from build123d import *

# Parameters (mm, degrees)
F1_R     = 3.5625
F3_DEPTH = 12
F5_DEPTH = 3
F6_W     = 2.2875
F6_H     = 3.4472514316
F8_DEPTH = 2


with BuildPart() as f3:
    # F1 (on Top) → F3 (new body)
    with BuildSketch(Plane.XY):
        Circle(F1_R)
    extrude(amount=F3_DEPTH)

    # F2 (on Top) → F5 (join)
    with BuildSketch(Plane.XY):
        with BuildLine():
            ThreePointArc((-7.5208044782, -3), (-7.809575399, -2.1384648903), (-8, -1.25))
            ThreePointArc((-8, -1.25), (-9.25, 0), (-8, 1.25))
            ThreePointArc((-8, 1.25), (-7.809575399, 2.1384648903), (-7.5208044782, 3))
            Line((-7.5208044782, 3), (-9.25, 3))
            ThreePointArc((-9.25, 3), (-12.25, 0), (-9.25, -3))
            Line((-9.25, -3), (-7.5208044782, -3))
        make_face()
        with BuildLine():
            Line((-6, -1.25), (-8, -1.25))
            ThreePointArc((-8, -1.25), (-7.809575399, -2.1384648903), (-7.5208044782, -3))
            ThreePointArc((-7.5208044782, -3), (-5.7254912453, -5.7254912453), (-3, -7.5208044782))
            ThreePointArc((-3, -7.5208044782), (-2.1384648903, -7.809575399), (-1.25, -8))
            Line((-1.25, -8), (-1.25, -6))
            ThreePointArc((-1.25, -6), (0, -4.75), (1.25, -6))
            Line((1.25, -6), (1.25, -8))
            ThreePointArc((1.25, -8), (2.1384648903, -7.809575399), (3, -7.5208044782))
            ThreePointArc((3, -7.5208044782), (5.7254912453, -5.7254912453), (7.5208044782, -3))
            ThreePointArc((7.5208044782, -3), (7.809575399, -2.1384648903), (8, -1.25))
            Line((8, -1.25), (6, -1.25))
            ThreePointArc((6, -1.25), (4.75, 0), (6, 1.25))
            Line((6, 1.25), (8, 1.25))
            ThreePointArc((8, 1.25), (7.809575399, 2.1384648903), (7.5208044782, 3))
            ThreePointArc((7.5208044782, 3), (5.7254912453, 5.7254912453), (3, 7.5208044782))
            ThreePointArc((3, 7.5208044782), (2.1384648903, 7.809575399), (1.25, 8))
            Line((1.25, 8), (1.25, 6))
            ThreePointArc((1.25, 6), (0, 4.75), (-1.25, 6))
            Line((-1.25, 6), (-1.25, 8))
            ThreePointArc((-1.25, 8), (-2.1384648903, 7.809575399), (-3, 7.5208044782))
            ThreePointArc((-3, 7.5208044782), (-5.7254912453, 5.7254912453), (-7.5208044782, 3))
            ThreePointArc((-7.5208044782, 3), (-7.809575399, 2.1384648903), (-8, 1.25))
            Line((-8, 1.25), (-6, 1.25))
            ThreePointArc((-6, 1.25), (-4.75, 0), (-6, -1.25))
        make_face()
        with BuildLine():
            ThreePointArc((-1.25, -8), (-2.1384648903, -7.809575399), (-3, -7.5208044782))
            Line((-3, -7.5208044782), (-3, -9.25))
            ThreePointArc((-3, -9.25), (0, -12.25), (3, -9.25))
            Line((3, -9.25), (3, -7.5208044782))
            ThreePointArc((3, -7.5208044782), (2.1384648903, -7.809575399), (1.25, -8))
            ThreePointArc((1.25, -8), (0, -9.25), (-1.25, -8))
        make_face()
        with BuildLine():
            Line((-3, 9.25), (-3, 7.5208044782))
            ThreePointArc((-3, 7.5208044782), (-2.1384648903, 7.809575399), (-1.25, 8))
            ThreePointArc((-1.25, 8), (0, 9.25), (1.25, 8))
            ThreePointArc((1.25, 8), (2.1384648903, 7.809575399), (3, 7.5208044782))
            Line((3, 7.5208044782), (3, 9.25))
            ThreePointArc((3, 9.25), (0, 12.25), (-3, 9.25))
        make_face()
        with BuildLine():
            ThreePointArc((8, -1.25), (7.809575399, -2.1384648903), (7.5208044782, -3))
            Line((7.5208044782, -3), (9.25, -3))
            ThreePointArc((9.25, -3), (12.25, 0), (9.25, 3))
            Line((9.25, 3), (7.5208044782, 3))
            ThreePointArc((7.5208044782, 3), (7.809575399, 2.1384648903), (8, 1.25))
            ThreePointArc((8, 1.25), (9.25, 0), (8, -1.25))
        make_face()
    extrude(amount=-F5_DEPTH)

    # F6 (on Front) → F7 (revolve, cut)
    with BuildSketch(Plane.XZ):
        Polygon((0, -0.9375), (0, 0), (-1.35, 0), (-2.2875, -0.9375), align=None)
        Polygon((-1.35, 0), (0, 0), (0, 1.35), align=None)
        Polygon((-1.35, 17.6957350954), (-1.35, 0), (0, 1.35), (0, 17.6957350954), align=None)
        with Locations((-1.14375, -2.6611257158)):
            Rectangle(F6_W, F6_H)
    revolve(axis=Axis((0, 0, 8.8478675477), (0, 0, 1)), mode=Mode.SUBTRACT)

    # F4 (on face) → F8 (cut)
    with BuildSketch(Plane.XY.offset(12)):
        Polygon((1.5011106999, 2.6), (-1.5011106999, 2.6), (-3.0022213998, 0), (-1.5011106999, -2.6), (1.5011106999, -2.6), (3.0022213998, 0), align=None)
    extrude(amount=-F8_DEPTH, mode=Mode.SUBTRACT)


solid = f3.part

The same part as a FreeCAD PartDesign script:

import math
import FreeCAD as App
import Part
import Sketcher
Q = App.Units.Quantity

doc = App.newDocument("Part")
body = doc.addObject("PartDesign::Body", "Body")

# Sketch on XY plane
sketch1 = body.newObject("Sketcher::SketchObject", "Sketch")
sketch1.AttachmentSupport = (doc.getObject("XY_Plane"), [""])
sketch1.MapMode = "FlatFace"
sketch1.addGeometry(Part.Circle(App.Vector(0, 0, 0), App.Vector(0, 0, 1), 3.5625), False)
sketch1.addConstraint(Sketcher.Constraint("Coincident", 0, 3, -1, 1))
sketch1.addConstraint(Sketcher.Constraint("Diameter", 0, 7.125))
pad1 = body.newObject("PartDesign::Pad", "Pad")
pad1.Profile = sketch1
pad1.Length = 12

# Sketch on XY plane
sketch2 = body.newObject("Sketcher::SketchObject", "Sketch001")
sketch2.AttachmentSupport = (doc.getObject("XY_Plane"), [""])
sketch2.MapMode = "FlatFace"
sketch2.addGeometry(Part.LineSegment(App.Vector(-7.520804, 3, 0), App.Vector(-9.25, 3, 0)), False)
sketch2.addGeometry(Part.ArcOfCircle(Part.Circle(App.Vector(-9.25, 0, 0), App.Vector(0, 0, 1), 3), math.radians(90), math.radians(270)), False)
sketch2.addGeometry(Part.LineSegment(App.Vector(-9.25, -3, 0), App.Vector(-7.520804, -3, 0)), False)
sketch2.addGeometry(Part.ArcOfCircle(Part.Circle(App.Vector(0, 0, 0), App.Vector(0, 0, 1), 8.097067), math.radians(-158.253265), math.radians(-111.746735)), False)
sketch2.addGeometry(Part.LineSegment(App.Vector(-3, -7.520804, 0), App.Vector(-3, -9.25, 0)), False)
sketch2.addGeometry(Part.ArcOfCircle(Part.Circle(App.Vector(0, -9.25, 0), App.Vector(0, 0, 1), 3), math.radians(180), math.radians(360)), False)
sketch2.addGeometry(Part.LineSegment(App.Vector(3, -9.25, 0), App.Vector(3, -7.520804, 0)), False)
sketch2.addGeometry(Part.ArcOfCircle(Part.Circle(App.Vector(0, 0, 0), App.Vector(0, 0, 1), 8.097067), math.radians(-68.253265), math.radians(-21.746735)), False)
sketch2.addGeometry(Part.LineSegment(App.Vector(7.520804, -3, 0), App.Vector(9.25, -3, 0)), False)
sketch2.addGeometry(Part.ArcOfCircle(Part.Circle(App.Vector(9.25, 0, 0), App.Vector(0, 0, 1), 3), math.radians(-90), math.radians(90)), False)
sketch2.addGeometry(Part.LineSegment(App.Vector(9.25, 3, 0), App.Vector(7.520804, 3, 0)), False)
sketch2.addGeometry(Part.ArcOfCircle(Part.Circle(App.Vector(0, 0, 0), App.Vector(0, 0, 1), 8.097067), math.radians(21.746735), math.radians(68.253265)), False)
sketch2.addGeometry(Part.LineSegment(App.Vector(3, 7.520804, 0), App.Vector(3, 9.25, 0)), False)
sketch2.addGeometry(Part.ArcOfCircle(Part.Circle(App.Vector(0, 9.25, 0), App.Vector(0, 0, 1), 3), math.radians(0), math.radians(180)), False)
sketch2.addGeometry(Part.LineSegment(App.Vector(-3, 9.25, 0), App.Vector(-3, 7.520804, 0)), False)
sketch2.addGeometry(Part.ArcOfCircle(Part.Circle(App.Vector(0, 0, 0), App.Vector(0, 0, 1), 8.097067), math.radians(111.746735), math.radians(158.253265)), False)
sketch2.addGeometry(Part.ArcOfCircle(Part.Circle(App.Vector(-8, 0, 0), App.Vector(0, 0, 1), 1.25), math.radians(90), math.radians(270)), False)
sketch2.addGeometry(Part.LineSegment(App.Vector(-8, 1.25, 0), App.Vector(-6, 1.25, 0)), False)
sketch2.addGeometry(Part.ArcOfCircle(Part.Circle(App.Vector(-6, 0, 0), App.Vector(0, 0, 1), 1.25), math.radians(-90), math.radians(90)), False)
sketch2.addGeometry(Part.LineSegment(App.Vector(-6, -1.25, 0), App.Vector(-8, -1.25, 0)), False)
sketch2.addGeometry(Part.LineSegment(App.Vector(8, -1.25, 0), App.Vector(6, -1.25, 0)), False)
sketch2.addGeometry(Part.ArcOfCircle(Part.Circle(App.Vector(6, 0, 0), App.Vector(0, 0, 1), 1.25), math.radians(90), math.radians(270)), False)
sketch2.addGeometry(Part.LineSegment(App.Vector(6, 1.25, 0), App.Vector(8, 1.25, 0)), False)
sketch2.addGeometry(Part.ArcOfCircle(Part.Circle(App.Vector(8, 0, 0), App.Vector(0, 0, 1), 1.25), math.radians(-90), math.radians(90)), False)
sketch2.addGeometry(Part.LineSegment(App.Vector(1.25, 8, 0), App.Vector(1.25, 6, 0)), False)
sketch2.addGeometry(Part.ArcOfCircle(Part.Circle(App.Vector(0, 6, 0), App.Vector(0, 0, 1), 1.25), math.radians(180), math.radians(360)), False)
sketch2.addGeometry(Part.LineSegment(App.Vector(-1.25, 6, 0), App.Vector(-1.25, 8, 0)), False)
sketch2.addGeometry(Part.ArcOfCircle(Part.Circle(App.Vector(0, 8, 0), App.Vector(0, 0, 1), 1.25), math.radians(0), math.radians(180)), False)
sketch2.addGeometry(Part.LineSegment(App.Vector(-1.25, -8, 0), App.Vector(-1.25, -6, 0)), False)
sketch2.addGeometry(Part.ArcOfCircle(Part.Circle(App.Vector(0, -6, 0), App.Vector(0, 0, 1), 1.25), math.radians(0), math.radians(180)), False)
sketch2.addGeometry(Part.LineSegment(App.Vector(1.25, -6, 0), App.Vector(1.25, -8, 0)), False)
sketch2.addGeometry(Part.ArcOfCircle(Part.Circle(App.Vector(0, -8, 0), App.Vector(0, 0, 1), 1.25), math.radians(180), math.radians(360)), False)
sketch2.addConstraint(Sketcher.Constraint("Tangent", 0, 2, 1, 1))
sketch2.addConstraint(Sketcher.Constraint("Tangent", 1, 2, 2, 1))
sketch2.addConstraint(Sketcher.Constraint("Coincident", 2, 2, 3, 1))
sketch2.addConstraint(Sketcher.Constraint("Coincident", 3, 2, 4, 1))
sketch2.addConstraint(Sketcher.Constraint("Tangent", 4, 2, 5, 1))
sketch2.addConstraint(Sketcher.Constraint("Tangent", 5, 2, 6, 1))
sketch2.addConstraint(Sketcher.Constraint("Coincident", 6, 2, 7, 1))
sketch2.addConstraint(Sketcher.Constraint("Coincident", 7, 2, 8, 1))
sketch2.addConstraint(Sketcher.Constraint("Tangent", 8, 2, 9, 1))
sketch2.addConstraint(Sketcher.Constraint("Tangent", 9, 2, 10, 1))
sketch2.addConstraint(Sketcher.Constraint("Coincident", 10, 2, 11, 1))
sketch2.addConstraint(Sketcher.Constraint("Coincident", 11, 2, 12, 1))
sketch2.addConstraint(Sketcher.Constraint("Tangent", 12, 2, 13, 1))
sketch2.addConstraint(Sketcher.Constraint("Tangent", 13, 2, 14, 1))
sketch2.addConstraint(Sketcher.Constraint("Coincident", 14, 2, 15, 1))
sketch2.addConstraint(Sketcher.Constraint("Coincident", 15, 2, 0, 1))
sketch2.addConstraint(Sketcher.Constraint("Tangent", 16, 1, 17, 1))
sketch2.addConstraint(Sketcher.Constraint("Tangent", 17, 2, 18, 2))
sketch2.addConstraint(Sketcher.Constraint("Tangent", 18, 1, 19, 1))
sketch2.addConstraint(Sketcher.Constraint("Tangent", 19, 2, 16, 2))
sketch2.addConstraint(Sketcher.Constraint("Tangent", 20, 2, 21, 2))
sketch2.addConstraint(Sketcher.Constraint("Tangent", 21, 1, 22, 1))
sketch2.addConstraint(Sketcher.Constraint("Tangent", 22, 2, 23, 2))
sketch2.addConstraint(Sketcher.Constraint("Tangent", 23, 1, 20, 1))
sketch2.addConstraint(Sketcher.Constraint("Tangent", 24, 2, 25, 2))
sketch2.addConstraint(Sketcher.Constraint("Tangent", 25, 1, 26, 1))
sketch2.addConstraint(Sketcher.Constraint("Tangent", 26, 2, 27, 2))
sketch2.addConstraint(Sketcher.Constraint("Tangent", 27, 1, 24, 1))
sketch2.addConstraint(Sketcher.Constraint("Tangent", 28, 2, 29, 2))
sketch2.addConstraint(Sketcher.Constraint("Tangent", 29, 1, 30, 1))
sketch2.addConstraint(Sketcher.Constraint("Tangent", 30, 2, 31, 2))
sketch2.addConstraint(Sketcher.Constraint("Tangent", 31, 1, 28, 1))
sketch2.addConstraint(Sketcher.Constraint("Horizontal", 0))
sketch2.addConstraint(Sketcher.Constraint("Horizontal", 2))
sketch2.addConstraint(Sketcher.Constraint("Vertical", 4))
sketch2.addConstraint(Sketcher.Constraint("Vertical", 6))
sketch2.addConstraint(Sketcher.Constraint("Horizontal", 8))
sketch2.addConstraint(Sketcher.Constraint("Horizontal", 10))
sketch2.addConstraint(Sketcher.Constraint("Vertical", 12))
sketch2.addConstraint(Sketcher.Constraint("Vertical", 14))
sketch2.addConstraint(Sketcher.Constraint("Horizontal", 17))
sketch2.addConstraint(Sketcher.Constraint("Horizontal", 19))
sketch2.addConstraint(Sketcher.Constraint("Horizontal", 20))
sketch2.addConstraint(Sketcher.Constraint("Horizontal", 22))
sketch2.addConstraint(Sketcher.Constraint("Vertical", 24))
sketch2.addConstraint(Sketcher.Constraint("Vertical", 26))
sketch2.addConstraint(Sketcher.Constraint("Vertical", 28))
sketch2.addConstraint(Sketcher.Constraint("Vertical", 30))
sketch2.addConstraint(Sketcher.Constraint("Coincident", 3, 3, -1, 1))
sketch2.addConstraint(Sketcher.Constraint("Coincident", 7, 3, -1, 1))
sketch2.addConstraint(Sketcher.Constraint("Coincident", 11, 3, -1, 1))
sketch2.addConstraint(Sketcher.Constraint("Coincident", 15, 3, -1, 1))
sketch2.addConstraint(Sketcher.Constraint("Equal", 1, 5))
sketch2.addConstraint(Sketcher.Constraint("Equal", 3, 7))
sketch2.addConstraint(Sketcher.Constraint("Equal", 5, 9))
sketch2.addConstraint(Sketcher.Constraint("Equal", 7, 11))
sketch2.addConstraint(Sketcher.Constraint("Equal", 9, 13))
sketch2.addConstraint(Sketcher.Constraint("Equal", 11, 15))
sketch2.addConstraint(Sketcher.Constraint("Equal", 18, 21))
sketch2.addConstraint(Sketcher.Constraint("Equal", 23, 25))
sketch2.addConstraint(Sketcher.Constraint("Equal", 27, 29))
sketch2.addConstraint(Sketcher.Constraint("Symmetric", 1, 3, 9, 3, -1, 1))
sketch2.addConstraint(Sketcher.Constraint("Symmetric", 5, 3, 13, 3, -1, 1))
sketch2.addConstraint(Sketcher.Constraint("Symmetric", 18, 3, 21, 3, -1, 1))
sketch2.addConstraint(Sketcher.Constraint("Symmetric", 25, 3, 29, 3, -1, 1))
sketch2.addConstraint(Sketcher.Constraint("Symmetric", 16, 3, 23, 3, -2))
sketch2.addConstraint(Sketcher.Constraint("Symmetric", 27, 3, 31, 3, -1))
sketch2.addConstraint(Sketcher.Constraint("PointOnObject", 1, 3, -1))
sketch2.addConstraint(Sketcher.Constraint("PointOnObject", 5, 3, -2))
sketch2.addConstraint(Sketcher.Constraint("Equal", 10, 4))
sketch2.addConstraint(Sketcher.Constraint("Equal", 22, 24))
sketch2.addConstraint(Sketcher.Constraint("Radius", 1, 3.0))
sketch2.addConstraint(Sketcher.Constraint("DistanceX", 17, 1, 17, 2, 2.0))
sketch2.addConstraint(Sketcher.Constraint("Radius", 16, 1.25))
sketch2.addConstraint(Sketcher.Constraint("DistanceX", 16, 3, -1, 1, 8.0))
sketch2.addConstraint(Sketcher.Constraint("DistanceY", -1, 1, 25, 3, 6.0))
sketch2.addConstraint(Sketcher.Constraint("DistanceX", 1, 3, 9, 3, 18.5))
sketch2.addConstraint(Sketcher.Constraint("Radius", 3, 8.097067))
pad2 = body.newObject("PartDesign::Pad", "Pad001")
pad2.Profile = sketch2
pad2.Length = 3
pad2.Reversed = True

# Sketch on XZ plane
sketch3 = body.newObject("Sketcher::SketchObject", "Sketch002")
sketch3.AttachmentSupport = (doc.getObject("XZ_Plane"), [""])
sketch3.MapMode = "FlatFace"
sketch3.addGeometry(Part.LineSegment(App.Vector(0, 17.695735, 0), App.Vector(-1.35, 17.695735, 0)), False)
sketch3.addGeometry(Part.LineSegment(App.Vector(-1.35, 17.695735, 0), App.Vector(-1.35, 0, 0)), False)
sketch3.addGeometry(Part.LineSegment(App.Vector(-1.35, 0, 0), App.Vector(-2.2875, -0.9375, 0)), False)
sketch3.addGeometry(Part.LineSegment(App.Vector(-2.2875, -0.9375, 0), App.Vector(-2.2875, -4.384751, 0)), False)
sketch3.addGeometry(Part.LineSegment(App.Vector(-2.2875, -4.384751, 0), App.Vector(0, -4.384751, 0)), False)
sketch3.addGeometry(Part.LineSegment(App.Vector(0, -4.384751, 0), App.Vector(0, 17.695735, 0)), False)
sketch3.addConstraint(Sketcher.Constraint("Coincident", 0, 2, 1, 1))
sketch3.addConstraint(Sketcher.Constraint("Coincident", 1, 2, 2, 1))
sketch3.addConstraint(Sketcher.Constraint("Coincident", 2, 2, 3, 1))
sketch3.addConstraint(Sketcher.Constraint("Coincident", 3, 2, 4, 1))
sketch3.addConstraint(Sketcher.Constraint("Coincident", 4, 2, 5, 1))
sketch3.addConstraint(Sketcher.Constraint("Coincident", 5, 2, 0, 1))
sketch3.addConstraint(Sketcher.Constraint("Horizontal", 0))
sketch3.addConstraint(Sketcher.Constraint("Vertical", 1))
sketch3.addConstraint(Sketcher.Constraint("Vertical", 3))
sketch3.addConstraint(Sketcher.Constraint("Horizontal", 4))
sketch3.addConstraint(Sketcher.Constraint("Vertical", 5))
sketch3.addConstraint(Sketcher.Constraint("PointOnObject", 1, 2, -1))
sketch3.addConstraint(Sketcher.Constraint("PointOnObject", 4, 2, -2))
sketch3.addConstraint(Sketcher.Constraint("Angle", 2, Q("-135 deg")))
sketch3.addConstraint(Sketcher.Constraint("DistanceX", 0, 2, 0, 1, 1.35))
sketch3.addConstraint(Sketcher.Constraint("DistanceX", 4, 1, 4, 2, 2.2875))
sketch3.addConstraint(Sketcher.Constraint("DistanceY", 3, 2, 3, 1, 3.447251))
sketch3.addConstraint(Sketcher.Constraint("DistanceY", 1, 2, 1, 1, 17.695735))
groove = body.newObject("PartDesign::Groove", "Groove")
groove.Profile = sketch3
groove.ReferenceAxis = (sketch3, ["V_Axis"])
groove.Angle = 360

# Sketch on XY plane
sketch4 = body.newObject("Sketcher::SketchObject", "Sketch003")
sketch4.AttachmentSupport = (doc.getObject("XY_Plane"), [""])
sketch4.MapMode = "FlatFace"
sketch4.AttachmentOffset = App.Placement(App.Vector(0, 0, 12), App.Rotation())
sketch4.addGeometry(Part.LineSegment(App.Vector(1.501111, 2.6, 0), App.Vector(-1.501111, 2.6, 0)), False)
sketch4.addGeometry(Part.LineSegment(App.Vector(-1.501111, 2.6, 0), App.Vector(-3.002221, 0, 0)), False)
sketch4.addGeometry(Part.LineSegment(App.Vector(-3.002221, 0, 0), App.Vector(-1.501111, -2.6, 0)), False)
sketch4.addGeometry(Part.LineSegment(App.Vector(-1.501111, -2.6, 0), App.Vector(1.501111, -2.6, 0)), False)
sketch4.addGeometry(Part.LineSegment(App.Vector(1.501111, -2.6, 0), App.Vector(3.002221, 0, 0)), False)
sketch4.addGeometry(Part.LineSegment(App.Vector(3.002221, 0, 0), App.Vector(1.501111, 2.6, 0)), False)
sketch4.addConstraint(Sketcher.Constraint("Coincident", 0, 2, 1, 1))
sketch4.addConstraint(Sketcher.Constraint("Coincident", 1, 2, 2, 1))
sketch4.addConstraint(Sketcher.Constraint("Coincident", 2, 2, 3, 1))
sketch4.addConstraint(Sketcher.Constraint("Coincident", 3, 2, 4, 1))
sketch4.addConstraint(Sketcher.Constraint("Coincident", 4, 2, 5, 1))
sketch4.addConstraint(Sketcher.Constraint("Coincident", 5, 2, 0, 1))
sketch4.addConstraint(Sketcher.Constraint("Horizontal", 0))
sketch4.addConstraint(Sketcher.Constraint("Horizontal", 3))
sketch4.addConstraint(Sketcher.Constraint("Symmetric", 0, 2, 3, 2, -1, 1))
sketch4.addConstraint(Sketcher.Constraint("Symmetric", 1, 2, 4, 2, -1, 1))
sketch4.addConstraint(Sketcher.Constraint("PointOnObject", 1, 2, -1))
sketch4.addConstraint(Sketcher.Constraint("Parallel", 2, 5))
sketch4.addConstraint(Sketcher.Constraint("Vertical", 0, 2, 2, 2))
sketch4.addConstraint(Sketcher.Constraint("Angle", 1, Q("-120 deg")))
sketch4.addConstraint(Sketcher.Constraint("DistanceY", -1, 1, 0, 2, 2.6))
sketch4.addConstraint(Sketcher.Constraint("DistanceX", 0, 2, 0, 1, 3.002221))
pocket1 = body.newObject("PartDesign::Pocket", "Pocket")
pocket1.Profile = sketch4
pocket1.Length = 2

doc.recompute()
